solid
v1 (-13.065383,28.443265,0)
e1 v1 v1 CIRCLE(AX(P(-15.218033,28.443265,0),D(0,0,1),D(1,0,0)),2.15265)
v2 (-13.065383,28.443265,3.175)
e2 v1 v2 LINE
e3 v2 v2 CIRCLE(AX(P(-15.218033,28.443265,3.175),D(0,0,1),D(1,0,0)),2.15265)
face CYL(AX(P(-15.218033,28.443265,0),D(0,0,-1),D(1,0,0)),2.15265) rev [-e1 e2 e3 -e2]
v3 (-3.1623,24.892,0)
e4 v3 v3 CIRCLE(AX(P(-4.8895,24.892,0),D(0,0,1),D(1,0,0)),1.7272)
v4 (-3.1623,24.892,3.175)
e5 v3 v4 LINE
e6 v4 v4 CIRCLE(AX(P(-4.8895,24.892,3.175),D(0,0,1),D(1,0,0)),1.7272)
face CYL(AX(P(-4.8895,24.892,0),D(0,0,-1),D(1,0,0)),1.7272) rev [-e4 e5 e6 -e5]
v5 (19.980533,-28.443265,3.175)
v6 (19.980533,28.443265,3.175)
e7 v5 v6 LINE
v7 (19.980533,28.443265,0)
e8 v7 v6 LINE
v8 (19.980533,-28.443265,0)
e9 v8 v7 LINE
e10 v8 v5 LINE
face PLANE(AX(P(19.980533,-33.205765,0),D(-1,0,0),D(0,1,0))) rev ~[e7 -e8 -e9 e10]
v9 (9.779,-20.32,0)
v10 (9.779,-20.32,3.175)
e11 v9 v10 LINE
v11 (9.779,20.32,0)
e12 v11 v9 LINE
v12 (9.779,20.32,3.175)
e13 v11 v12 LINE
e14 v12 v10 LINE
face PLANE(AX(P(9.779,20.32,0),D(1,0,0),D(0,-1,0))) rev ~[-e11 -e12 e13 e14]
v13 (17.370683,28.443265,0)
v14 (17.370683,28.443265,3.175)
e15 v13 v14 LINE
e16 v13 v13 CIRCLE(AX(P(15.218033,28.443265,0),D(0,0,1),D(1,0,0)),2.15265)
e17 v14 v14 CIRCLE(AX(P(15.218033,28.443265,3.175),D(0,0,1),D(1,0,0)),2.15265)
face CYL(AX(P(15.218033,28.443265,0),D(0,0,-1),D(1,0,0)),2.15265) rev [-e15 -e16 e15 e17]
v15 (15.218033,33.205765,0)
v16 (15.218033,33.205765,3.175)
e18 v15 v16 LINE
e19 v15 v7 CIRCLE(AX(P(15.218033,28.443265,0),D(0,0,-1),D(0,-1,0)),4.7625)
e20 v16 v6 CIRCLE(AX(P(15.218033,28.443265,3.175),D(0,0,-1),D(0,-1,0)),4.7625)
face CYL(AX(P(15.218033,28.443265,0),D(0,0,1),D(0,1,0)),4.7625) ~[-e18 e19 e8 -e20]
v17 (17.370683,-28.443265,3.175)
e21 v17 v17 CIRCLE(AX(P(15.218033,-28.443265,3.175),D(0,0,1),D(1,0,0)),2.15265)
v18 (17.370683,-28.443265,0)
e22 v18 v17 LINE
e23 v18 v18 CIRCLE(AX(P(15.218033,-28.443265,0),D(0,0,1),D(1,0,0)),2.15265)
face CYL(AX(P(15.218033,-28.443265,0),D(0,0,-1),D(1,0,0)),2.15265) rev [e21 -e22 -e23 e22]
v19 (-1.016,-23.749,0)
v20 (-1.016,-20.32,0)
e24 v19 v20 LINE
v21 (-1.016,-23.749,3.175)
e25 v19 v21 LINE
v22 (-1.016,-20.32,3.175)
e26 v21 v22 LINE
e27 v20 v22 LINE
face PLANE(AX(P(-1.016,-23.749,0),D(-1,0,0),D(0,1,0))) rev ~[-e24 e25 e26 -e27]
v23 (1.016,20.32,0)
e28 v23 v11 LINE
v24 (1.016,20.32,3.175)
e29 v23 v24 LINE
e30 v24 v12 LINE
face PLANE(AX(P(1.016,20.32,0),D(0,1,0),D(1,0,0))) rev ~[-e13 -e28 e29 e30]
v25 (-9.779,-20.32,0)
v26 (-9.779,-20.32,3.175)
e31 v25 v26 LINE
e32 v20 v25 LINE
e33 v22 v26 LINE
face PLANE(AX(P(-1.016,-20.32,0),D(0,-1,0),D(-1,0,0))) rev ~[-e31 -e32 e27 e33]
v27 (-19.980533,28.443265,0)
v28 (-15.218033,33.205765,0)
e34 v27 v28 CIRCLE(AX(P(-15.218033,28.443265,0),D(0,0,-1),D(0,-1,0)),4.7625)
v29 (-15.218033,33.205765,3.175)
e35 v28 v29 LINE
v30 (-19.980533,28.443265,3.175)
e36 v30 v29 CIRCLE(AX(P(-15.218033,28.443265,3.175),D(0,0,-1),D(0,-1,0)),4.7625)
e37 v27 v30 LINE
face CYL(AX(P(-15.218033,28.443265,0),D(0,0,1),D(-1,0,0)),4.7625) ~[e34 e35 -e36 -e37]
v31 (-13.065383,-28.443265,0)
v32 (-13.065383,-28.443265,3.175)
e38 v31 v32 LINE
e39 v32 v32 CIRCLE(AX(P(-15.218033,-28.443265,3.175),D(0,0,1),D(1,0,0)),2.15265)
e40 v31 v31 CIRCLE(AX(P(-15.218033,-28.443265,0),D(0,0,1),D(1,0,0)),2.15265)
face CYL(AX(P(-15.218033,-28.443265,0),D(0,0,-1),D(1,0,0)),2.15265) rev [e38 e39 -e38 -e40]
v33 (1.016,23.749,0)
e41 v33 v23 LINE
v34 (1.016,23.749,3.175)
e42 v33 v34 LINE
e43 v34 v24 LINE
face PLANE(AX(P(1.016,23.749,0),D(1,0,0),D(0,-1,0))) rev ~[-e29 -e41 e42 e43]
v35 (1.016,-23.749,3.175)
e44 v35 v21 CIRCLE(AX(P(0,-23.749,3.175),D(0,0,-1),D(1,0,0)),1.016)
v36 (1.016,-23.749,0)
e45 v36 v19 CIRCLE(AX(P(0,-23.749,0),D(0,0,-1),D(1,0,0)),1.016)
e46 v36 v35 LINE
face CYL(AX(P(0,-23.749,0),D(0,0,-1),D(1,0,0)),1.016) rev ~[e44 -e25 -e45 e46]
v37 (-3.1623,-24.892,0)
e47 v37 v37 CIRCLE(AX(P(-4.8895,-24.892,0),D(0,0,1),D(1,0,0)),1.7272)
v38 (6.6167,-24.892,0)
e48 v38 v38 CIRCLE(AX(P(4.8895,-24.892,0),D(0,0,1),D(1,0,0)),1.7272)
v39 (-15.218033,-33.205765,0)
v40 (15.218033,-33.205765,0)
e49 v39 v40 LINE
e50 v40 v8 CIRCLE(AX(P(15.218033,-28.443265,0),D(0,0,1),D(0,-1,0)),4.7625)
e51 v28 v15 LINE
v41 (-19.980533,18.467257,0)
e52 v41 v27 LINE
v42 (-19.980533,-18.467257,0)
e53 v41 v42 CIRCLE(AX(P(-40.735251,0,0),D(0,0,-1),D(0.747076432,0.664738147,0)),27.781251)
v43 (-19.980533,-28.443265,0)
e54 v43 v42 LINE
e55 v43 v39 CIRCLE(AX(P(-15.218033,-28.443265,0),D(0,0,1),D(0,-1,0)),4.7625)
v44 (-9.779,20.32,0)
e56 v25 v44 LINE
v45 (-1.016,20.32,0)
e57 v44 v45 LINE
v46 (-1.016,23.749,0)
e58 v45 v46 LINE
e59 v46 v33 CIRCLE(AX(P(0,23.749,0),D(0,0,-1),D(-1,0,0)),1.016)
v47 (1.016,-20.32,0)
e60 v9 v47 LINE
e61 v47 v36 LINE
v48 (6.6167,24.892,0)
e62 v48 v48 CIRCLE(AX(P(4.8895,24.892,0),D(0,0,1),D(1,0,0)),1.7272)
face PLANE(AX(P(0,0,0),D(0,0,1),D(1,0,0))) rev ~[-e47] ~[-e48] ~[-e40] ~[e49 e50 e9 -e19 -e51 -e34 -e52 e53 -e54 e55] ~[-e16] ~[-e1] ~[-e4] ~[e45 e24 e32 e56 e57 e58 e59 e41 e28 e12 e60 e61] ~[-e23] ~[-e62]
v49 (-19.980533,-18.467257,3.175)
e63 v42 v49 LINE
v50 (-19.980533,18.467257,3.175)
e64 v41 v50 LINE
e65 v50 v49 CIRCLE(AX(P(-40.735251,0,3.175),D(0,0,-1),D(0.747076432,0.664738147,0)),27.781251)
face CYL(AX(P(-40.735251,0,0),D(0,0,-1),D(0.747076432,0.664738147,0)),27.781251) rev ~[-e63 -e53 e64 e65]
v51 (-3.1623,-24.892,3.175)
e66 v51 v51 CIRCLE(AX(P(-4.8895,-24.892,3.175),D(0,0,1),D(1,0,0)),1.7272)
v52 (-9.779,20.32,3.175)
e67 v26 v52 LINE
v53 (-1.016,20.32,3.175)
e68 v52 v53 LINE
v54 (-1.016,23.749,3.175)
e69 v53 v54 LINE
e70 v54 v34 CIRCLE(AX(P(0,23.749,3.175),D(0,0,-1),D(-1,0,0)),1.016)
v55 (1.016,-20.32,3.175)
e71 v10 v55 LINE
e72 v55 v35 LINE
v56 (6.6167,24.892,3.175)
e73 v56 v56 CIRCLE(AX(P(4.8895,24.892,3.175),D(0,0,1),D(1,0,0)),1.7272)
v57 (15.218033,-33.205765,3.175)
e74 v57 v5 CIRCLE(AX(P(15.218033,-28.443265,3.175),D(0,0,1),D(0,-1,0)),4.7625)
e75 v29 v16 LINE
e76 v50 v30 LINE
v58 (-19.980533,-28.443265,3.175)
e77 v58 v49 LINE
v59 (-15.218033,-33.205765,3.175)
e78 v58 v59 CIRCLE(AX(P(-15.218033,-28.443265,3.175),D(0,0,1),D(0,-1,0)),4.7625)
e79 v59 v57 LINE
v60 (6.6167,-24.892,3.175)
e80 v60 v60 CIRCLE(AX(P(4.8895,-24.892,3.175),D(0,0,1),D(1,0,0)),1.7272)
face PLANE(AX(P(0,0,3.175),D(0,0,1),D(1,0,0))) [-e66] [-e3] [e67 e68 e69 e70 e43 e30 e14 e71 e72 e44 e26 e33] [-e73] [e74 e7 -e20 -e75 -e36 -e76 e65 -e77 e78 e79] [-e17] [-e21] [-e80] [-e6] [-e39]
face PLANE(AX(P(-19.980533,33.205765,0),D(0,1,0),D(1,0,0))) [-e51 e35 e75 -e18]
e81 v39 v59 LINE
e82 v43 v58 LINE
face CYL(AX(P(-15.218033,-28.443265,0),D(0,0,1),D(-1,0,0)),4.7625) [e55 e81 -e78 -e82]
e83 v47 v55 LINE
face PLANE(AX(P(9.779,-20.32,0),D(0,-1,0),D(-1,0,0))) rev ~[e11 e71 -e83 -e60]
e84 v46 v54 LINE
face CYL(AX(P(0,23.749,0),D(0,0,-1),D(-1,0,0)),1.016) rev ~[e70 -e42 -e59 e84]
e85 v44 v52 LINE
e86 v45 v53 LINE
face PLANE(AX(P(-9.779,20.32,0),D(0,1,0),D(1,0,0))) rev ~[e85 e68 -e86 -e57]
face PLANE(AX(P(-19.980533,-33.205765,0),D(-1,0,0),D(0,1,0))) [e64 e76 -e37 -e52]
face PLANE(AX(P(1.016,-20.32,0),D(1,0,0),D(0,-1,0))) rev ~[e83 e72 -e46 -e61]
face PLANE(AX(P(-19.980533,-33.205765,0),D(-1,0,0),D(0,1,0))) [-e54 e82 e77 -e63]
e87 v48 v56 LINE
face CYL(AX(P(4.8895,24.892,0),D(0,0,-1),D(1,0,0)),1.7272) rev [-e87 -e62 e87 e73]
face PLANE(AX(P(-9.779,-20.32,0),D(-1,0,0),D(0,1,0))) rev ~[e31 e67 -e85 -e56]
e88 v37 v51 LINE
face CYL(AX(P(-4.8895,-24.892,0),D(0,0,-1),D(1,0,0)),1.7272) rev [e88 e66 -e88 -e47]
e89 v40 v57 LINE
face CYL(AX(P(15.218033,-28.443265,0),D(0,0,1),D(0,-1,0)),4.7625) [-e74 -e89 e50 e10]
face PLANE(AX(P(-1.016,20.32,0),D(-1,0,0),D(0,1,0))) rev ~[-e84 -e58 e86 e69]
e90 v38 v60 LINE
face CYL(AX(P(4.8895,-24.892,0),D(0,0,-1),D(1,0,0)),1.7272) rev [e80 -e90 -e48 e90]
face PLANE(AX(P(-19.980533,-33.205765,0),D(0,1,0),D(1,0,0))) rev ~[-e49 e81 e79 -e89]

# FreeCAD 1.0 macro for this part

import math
import FreeCAD as App
import Part
import Sketcher

V = App.Vector
Q = App.Units.Quantity


def edges_at(feature, points):
    """Names of the edges that pass closest to the given points."""
    edges = feature.Shape.Edges
    near = lambda p: min(range(len(edges)), key=lambda i: edges[i].distToShape(Part.Vertex(*p))[0])
    return sorted({f"Edge{near(p) + 1}" for p in points})


def add_polygon(sketch, points):
    """Adds a closed chain of lines whose ends are joined by coincident constraints."""
    first, n = sketch.GeometryCount, len(points)
    for a, b in zip(points, points[1:] + points[:1]):
        sketch.addGeometry(Part.LineSegment(App.Vector(*a, 0), App.Vector(*b, 0)), False)
    for i in range(n):
        sketch.addConstraint(Sketcher.Constraint("Coincident", first + i, 2, first + (i + 1) % n, 1))

doc = App.newDocument("Part")
body = doc.addObject("PartDesign::Body", "Body")

# Sketch on XY plane
sketch1 = doc.addObject("Sketcher::SketchObject", "Sketch")
body.addObject(sketch1)
sketch1.AttachmentSupport = (doc.XY_Plane, [""])
sketch1.MapMode = "FlatFace"
add_polygon(sketch1, [(-20, 33.2), (-20, -33.2), (20, -33.2), (20, 33.2)])  # lines 0-3
sketch1.addGeometry(Part.Circle(V(-15.2, -28.4, 0), V(0, 0, 1), 2.2), False)  # 4
sketch1.addGeometry(Part.Circle(V(-4.9, -24.9, 0), V(0, 0, 1), 1.7), False)  # 5
sketch1.addGeometry(Part.Circle(V(4.9, -24.9, 0), V(0, 0, 1), 1.7), False)  # 6
sketch1.addGeometry(Part.Circle(V(15.2, -28.4, 0), V(0, 0, 1), 2.2), False)  # 7
sketch1.addGeometry(Part.Circle(V(-15.2, 28.4, 0), V(0, 0, 1), 2.2), False)  # 8
sketch1.addGeometry(Part.Circle(V(-4.9, 24.9, 0), V(0, 0, 1), 1.7), False)  # 9
sketch1.addGeometry(Part.LineSegment(V(-1, -23.7, 0), V(-1, -20.3, 0)), False)  # 10
sketch1.addGeometry(Part.LineSegment(V(-1, -20.3, 0), V(-9.8, -20.3, 0)), False)  # 11
sketch1.addGeometry(Part.LineSegment(V(-9.8, -20.3, 0), V(-9.8, 20.3, 0)), False)  # 12
sketch1.addGeometry(Part.LineSegment(V(-9.8, 20.3, 0), V(-1, 20.3, 0)), False)  # 13
sketch1.addGeometry(Part.LineSegment(V(-1, 20.3, 0), V(-1, 23.7, 0)), False)  # 14
sketch1.addGeometry(Part.ArcOfCircle(Part.Circle(V(0, 23.7, 0), V(0, 0, 1), 1), math.radians(0), math.radians(180)), False)  # 15
sketch1.addGeometry(Part.LineSegment(V(1, 23.7, 0), V(1, 20.3, 0)), False)  # 16
sketch1.addGeometry(Part.LineSegment(V(1, 20.3, 0), V(9.8, 20.3, 0)), False)  # 17
sketch1.addGeometry(Part.LineSegment(V(9.8, 20.3, 0), V(9.8, -20.3, 0)), False)  # 18
sketch1.addGeometry(Part.LineSegment(V(9.8, -20.3, 0), V(1, -20.3, 0)), False)  # 19
sketch1.addGeometry(Part.LineSegment(V(1, -20.3, 0), V(1, -23.7, 0)), False)  # 20
sketch1.addGeometry(Part.ArcOfCircle(Part.Circle(V(0, -23.7, 0), V(0, 0, 1), 1), math.radians(180), math.radians(360)), False)  # 21
sketch1.addGeometry(Part.Circle(V(4.9, 24.9, 0), V(0, 0, 1), 1.7), False)  # 22
sketch1.addGeometry(Part.Circle(V(15.2, 28.4, 0), V(0, 0, 1), 2.2), False)  # 23
sketch1.addConstraint([
    Sketcher.Constraint("Coincident", 10, 2, 11, 1),
    Sketcher.Constraint("Coincident", 11, 2, 12, 1),
    Sketcher.Constraint("Coincident", 12, 2, 13, 1),
    Sketcher.Constraint("Coincident", 13, 2, 14, 1),
    Sketcher.Constraint("Tangent", 14, 2, 15, 2),
    Sketcher.Constraint("Tangent", 15, 1, 16, 1),
    Sketcher.Constraint("Coincident", 16, 2, 17, 1),
    Sketcher.Constraint("Coincident", 17, 2, 18, 1),
    Sketcher.Constraint("Coincident", 18, 2, 19, 1),
    Sketcher.Constraint("Coincident", 19, 2, 20, 1),
    Sketcher.Constraint("Tangent", 20, 2, 21, 2),
    Sketcher.Constraint("Tangent", 21, 1, 10, 1),
    Sketcher.Constraint("Vertical", 0),
    Sketcher.Constraint("Horizontal", 1),
    Sketcher.Constraint("Vertical", 2),
    Sketcher.Constraint("Horizontal", 3),
    Sketcher.Constraint("Vertical", 10),
    Sketcher.Constraint("Horizontal", 11),
    Sketcher.Constraint("Vertical", 12),
    Sketcher.Constraint("Horizontal", 13),
    Sketcher.Constraint("Vertical", 14),
    Sketcher.Constraint("Vertical", 16),
    Sketcher.Constraint("Horizontal", 17),
    Sketcher.Constraint("Vertical", 18),
    Sketcher.Constraint("Horizontal", 19),
    Sketcher.Constraint("Vertical", 20),
    Sketcher.Constraint("Equal", 5, 6),
    Sketcher.Constraint("Equal", 4, 7),
    Sketcher.Constraint("Equal", 7, 8),
    Sketcher.Constraint("Equal", 6, 9),
    Sketcher.Constraint("Equal", 15, 21),
    Sketcher.Constraint("Equal", 9, 22),
    Sketcher.Constraint("Equal", 8, 23),
    Sketcher.Constraint("Symmetric", 7, 3, 8, 3, -1, 1),
    Sketcher.Constraint("Symmetric", 6, 3, 9, 3, -1, 1),
    Sketcher.Constraint("Symmetric", 15, 3, 21, 3, -1, 1),
    Sketcher.Constraint("Symmetric", 5, 3, 22, 3, -1, 1),
    Sketcher.Constraint("Symmetric", 4, 3, 23, 3, -1, 1),
    Sketcher.Constraint("Symmetric", 0, 2, 2, 2, -1, 1),
    Sketcher.Constraint("Symmetric", 11, 2, 17, 2, -1, 1),
    Sketcher.Constraint("Symmetric", 5, 3, 6, 3, -2),
    Sketcher.Constraint("Symmetric", 4, 3, 7, 3, -2),
    Sketcher.Constraint("Symmetric", 13, 2, 16, 2, -2),
    Sketcher.Constraint("Horizontal", 11, 2, 18, 2),
    Sketcher.Constraint("Radius", 15, Q("0.04 in")),
    Sketcher.Constraint("Diameter", 5, Q("0.136 in")),
    Sketcher.Constraint("DistanceY", 12, 1, 12, 2, Q("1.6 in")),
    Sketcher.Constraint("Diameter", 4, Q("0.1695 in")),
    Sketcher.Constraint("DistanceX", 11, 2, 11, 1, Q("0.345 in")),
    Sketcher.Constraint("DistanceY", 10, 1, 10, 2, Q("0.135 in")),
    Sketcher.Constraint("DistanceY", 5, 3, -1, 1, Q("0.98 in")),
    Sketcher.Constraint("DistanceX", 5, 3, 6, 3, Q("0.385 in")),
    Sketcher.Constraint("DistanceX", 0, 2, 4, 3, Q("0.1875 in")),
    Sketcher.Constraint("DistanceY", 0, 2, 4, 3, Q("0.1875 in")),
    Sketcher.Constraint("DistanceY", 0, 2, 0, 1, 66.41153),
    Sketcher.Constraint("DistanceX", 1, 1, 1, 2, 39.961066),
])
pad1 = doc.addObject("PartDesign::Pad", "Pad")
body.addObject(pad1)
pad1.Profile = sketch1
pad1.Length = Q("0.125 in")
doc.recompute()

fillet = doc.addObject("PartDesign::Fillet", "Fillet")
body.addObject(fillet)
fillet.Base = (pad1, edges_at(pad1, [
    (19.981, 33.206, 1.587),
    (19.981, -33.206, 1.587),
    (-19.981, 33.206, 1.587),
    (-19.981, -33.206, 1.587),
]))
fillet.Radius = Q("0.1875 in")

# Sketch on XY plane
sketch2 = doc.addObject("Sketcher::SketchObject", "Sketch001")
body.addObject(sketch2)
sketch2.AttachmentSupport = (doc.XY_Plane, [""])
sketch2.MapMode = "FlatFace"
sketch2.addGeometry([
    Part.LineSegment(V(-20, -18, 0), V(-20, 18, 0)),
    Part.ArcOfCircle(Part.Circle(V(-41, 0, 0), V(0, 0, 1), 28), math.radians(-42), math.radians(42)),
], False)
sketch2.addConstraint([
    Sketcher.Constraint("Coincident", 0, 1, 1, 1),
    Sketcher.Constraint("Coincident", 1, 2, 0, 2),
    Sketcher.Constraint("Vertical", 0),
    Sketcher.Constraint("PointOnObject", 1, 3, -1),
    Sketcher.Constraint("Radius", 1, Q("1.09375 in")),
    Sketcher.Constraint("DistanceY", 0, 1, 0, 2, 36.934514),
    Sketcher.Constraint("DistanceX", 1, 3, -1, 1, 40.735251),
])
pocket1 = doc.addObject("PartDesign::Pocket", "Pocket")
body.addObject(pocket1)
pocket1.Profile = sketch2
pocket1.Type = "ThroughAll"
pocket1.Reversed = True

doc.recompute()
